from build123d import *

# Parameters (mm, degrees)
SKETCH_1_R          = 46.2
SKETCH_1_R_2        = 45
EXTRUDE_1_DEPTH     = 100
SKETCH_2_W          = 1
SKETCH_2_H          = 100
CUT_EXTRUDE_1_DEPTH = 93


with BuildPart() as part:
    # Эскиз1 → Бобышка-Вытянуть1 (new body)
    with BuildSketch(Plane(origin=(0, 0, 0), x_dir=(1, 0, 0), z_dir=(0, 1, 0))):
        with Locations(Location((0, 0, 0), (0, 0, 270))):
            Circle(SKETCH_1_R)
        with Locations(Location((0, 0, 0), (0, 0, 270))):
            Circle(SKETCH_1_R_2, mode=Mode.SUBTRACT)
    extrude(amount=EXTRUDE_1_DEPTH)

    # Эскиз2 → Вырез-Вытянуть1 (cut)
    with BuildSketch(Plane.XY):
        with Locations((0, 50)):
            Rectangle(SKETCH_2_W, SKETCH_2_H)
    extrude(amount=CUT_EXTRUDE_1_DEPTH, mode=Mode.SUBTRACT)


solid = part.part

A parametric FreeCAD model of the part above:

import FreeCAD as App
import Part
import Sketcher

V = App.Vector
Q = App.Units.Quantity

doc = App.newDocument("Part")
params = doc.addObject("Spreadsheet::Sheet", "Params")
for row, (alias, value) in enumerate([
    ("sketch1_diameter", "90 mm"),
    ("sketch1_diameter2", "92.4 mm"),
    ("pad1_length", "100 mm"),
    ("sketch2_width", "1 mm"),
    ("sketch2_height", "100 mm"),
    ("pocket1_length", "93 mm"),
], start=1):
    params.set(f"A{row}", alias)
    params.set(f"B{row}", "=" + value)
    params.setAlias(f"B{row}", alias)

body = doc.addObject("PartDesign::Body", "Body")

# Sketch on XZ plane
sketch1 = body.newObject("Sketcher::SketchObject", "Sketch")
sketch1.AttachmentSupport = (doc.getObject("XZ_Plane"), [""])
sketch1.MapMode = "FlatFace"
sketch1.addGeometry([
    Part.Circle(V(0, 0, 0), V(0, 0, 1), 46),
    Part.Circle(V(0, 0, 0), V(0, 0, 1), 45),
], False)
sketch1.addConstraint([
    Sketcher.Constraint("Coincident", 0, 3, -1, 1),
    Sketcher.Constraint("Coincident", 1, 3, -1, 1),
    Sketcher.Constraint("Diameter", 1, Q("90 mm")),
    Sketcher.Constraint("Diameter", 0, Q("92.4 mm")),
])
sketch1.setExpression("Constraints[2]", "Params.sketch1_diameter")
sketch1.setExpression("Constraints[3]", "Params.sketch1_diameter2")
pad1 = body.newObject("PartDesign::Pad", "Pad")
pad1.Profile = sketch1
pad1.setExpression("Length", "Params.pad1_length")
pad1.Reversed = True

# Sketch on XY plane
sketch2 = body.newObject("Sketcher::SketchObject", "Sketch001")
sketch2.AttachmentSupport = (doc.getObject("XY_Plane"), [""])
sketch2.MapMode = "FlatFace"
sketch2.addGeometry([
    Part.LineSegment(V(-0.5, 100, 0), V(-0.5, 0, 0)),
    Part.LineSegment(V(-0.5, 0, 0), V(0.5, 0, 0)),
    Part.LineSegment(V(0.5, 0, 0), V(0.5, 100, 0)),
    Part.LineSegment(V(0.5, 100, 0), V(-0.5, 100, 0)),
], False)
sketch2.addConstraint([
    Sketcher.Constraint("Coincident", 0, 2, 1, 1),
    Sketcher.Constraint("Coincident", 1, 2, 2, 1),
    Sketcher.Constraint("Coincident", 2, 2, 3, 1),
    Sketcher.Constraint("Coincident", 3, 2, 0, 1),
    Sketcher.Constraint("Vertical", 0),
    Sketcher.Constraint("Horizontal", 1),
    Sketcher.Constraint("Vertical", 2),
    Sketcher.Constraint("Horizontal", 3),
    Sketcher.Constraint("Symmetric", 0, 2, 1, 2, -1, 1),
    Sketcher.Constraint("DistanceX", 1, 1, 1, 2, Q("1 mm")),
    Sketcher.Constraint("DistanceY", 0, 2, 0, 1, Q("100 mm")),
])
sketch2.setExpression("Constraints[9]", "Params.sketch2_width")
sketch2.setExpression("Constraints[10]", "Params.sketch2_height")
pocket1 = body.newObject("PartDesign::Pocket", "Pocket")
pocket1.Profile = sketch2
pocket1.setExpression("Length", "Params.pocket1_length")
pocket1.Reversed = True

doc.recompute()
